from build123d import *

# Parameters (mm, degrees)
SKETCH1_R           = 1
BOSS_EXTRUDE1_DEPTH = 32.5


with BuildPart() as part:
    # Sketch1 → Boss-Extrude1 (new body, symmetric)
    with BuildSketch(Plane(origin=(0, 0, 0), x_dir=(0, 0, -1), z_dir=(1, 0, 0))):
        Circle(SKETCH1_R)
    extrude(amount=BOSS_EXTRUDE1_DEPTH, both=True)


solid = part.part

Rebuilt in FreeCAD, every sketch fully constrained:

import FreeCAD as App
import Part
import Sketcher

doc = App.newDocument("Part")
body = doc.addObject("PartDesign::Body", "Body")

sketch1 = body.newObject("Sketcher::SketchObject", "Sketch")
sketch1.AttachmentSupport = (doc.getObject("YZ_Plane"), [""])
sketch1.MapMode = "FlatFace"
sketch1.addGeometry(Part.Circle(App.Vector(0, 0, 0), App.Vector(0, 0, 1), 1), False)
sketch1.addConstraint([
    Sketcher.Constraint("Coincident", 0, 3, -1, 1),
    Sketcher.Constraint("Diameter", 0, 2.0),
])
pad1 = body.newObject("PartDesign::Pad", "Pad")
pad1.Profile = sketch1
pad1.Length = 65
pad1.Midplane = True

doc.recompute()
